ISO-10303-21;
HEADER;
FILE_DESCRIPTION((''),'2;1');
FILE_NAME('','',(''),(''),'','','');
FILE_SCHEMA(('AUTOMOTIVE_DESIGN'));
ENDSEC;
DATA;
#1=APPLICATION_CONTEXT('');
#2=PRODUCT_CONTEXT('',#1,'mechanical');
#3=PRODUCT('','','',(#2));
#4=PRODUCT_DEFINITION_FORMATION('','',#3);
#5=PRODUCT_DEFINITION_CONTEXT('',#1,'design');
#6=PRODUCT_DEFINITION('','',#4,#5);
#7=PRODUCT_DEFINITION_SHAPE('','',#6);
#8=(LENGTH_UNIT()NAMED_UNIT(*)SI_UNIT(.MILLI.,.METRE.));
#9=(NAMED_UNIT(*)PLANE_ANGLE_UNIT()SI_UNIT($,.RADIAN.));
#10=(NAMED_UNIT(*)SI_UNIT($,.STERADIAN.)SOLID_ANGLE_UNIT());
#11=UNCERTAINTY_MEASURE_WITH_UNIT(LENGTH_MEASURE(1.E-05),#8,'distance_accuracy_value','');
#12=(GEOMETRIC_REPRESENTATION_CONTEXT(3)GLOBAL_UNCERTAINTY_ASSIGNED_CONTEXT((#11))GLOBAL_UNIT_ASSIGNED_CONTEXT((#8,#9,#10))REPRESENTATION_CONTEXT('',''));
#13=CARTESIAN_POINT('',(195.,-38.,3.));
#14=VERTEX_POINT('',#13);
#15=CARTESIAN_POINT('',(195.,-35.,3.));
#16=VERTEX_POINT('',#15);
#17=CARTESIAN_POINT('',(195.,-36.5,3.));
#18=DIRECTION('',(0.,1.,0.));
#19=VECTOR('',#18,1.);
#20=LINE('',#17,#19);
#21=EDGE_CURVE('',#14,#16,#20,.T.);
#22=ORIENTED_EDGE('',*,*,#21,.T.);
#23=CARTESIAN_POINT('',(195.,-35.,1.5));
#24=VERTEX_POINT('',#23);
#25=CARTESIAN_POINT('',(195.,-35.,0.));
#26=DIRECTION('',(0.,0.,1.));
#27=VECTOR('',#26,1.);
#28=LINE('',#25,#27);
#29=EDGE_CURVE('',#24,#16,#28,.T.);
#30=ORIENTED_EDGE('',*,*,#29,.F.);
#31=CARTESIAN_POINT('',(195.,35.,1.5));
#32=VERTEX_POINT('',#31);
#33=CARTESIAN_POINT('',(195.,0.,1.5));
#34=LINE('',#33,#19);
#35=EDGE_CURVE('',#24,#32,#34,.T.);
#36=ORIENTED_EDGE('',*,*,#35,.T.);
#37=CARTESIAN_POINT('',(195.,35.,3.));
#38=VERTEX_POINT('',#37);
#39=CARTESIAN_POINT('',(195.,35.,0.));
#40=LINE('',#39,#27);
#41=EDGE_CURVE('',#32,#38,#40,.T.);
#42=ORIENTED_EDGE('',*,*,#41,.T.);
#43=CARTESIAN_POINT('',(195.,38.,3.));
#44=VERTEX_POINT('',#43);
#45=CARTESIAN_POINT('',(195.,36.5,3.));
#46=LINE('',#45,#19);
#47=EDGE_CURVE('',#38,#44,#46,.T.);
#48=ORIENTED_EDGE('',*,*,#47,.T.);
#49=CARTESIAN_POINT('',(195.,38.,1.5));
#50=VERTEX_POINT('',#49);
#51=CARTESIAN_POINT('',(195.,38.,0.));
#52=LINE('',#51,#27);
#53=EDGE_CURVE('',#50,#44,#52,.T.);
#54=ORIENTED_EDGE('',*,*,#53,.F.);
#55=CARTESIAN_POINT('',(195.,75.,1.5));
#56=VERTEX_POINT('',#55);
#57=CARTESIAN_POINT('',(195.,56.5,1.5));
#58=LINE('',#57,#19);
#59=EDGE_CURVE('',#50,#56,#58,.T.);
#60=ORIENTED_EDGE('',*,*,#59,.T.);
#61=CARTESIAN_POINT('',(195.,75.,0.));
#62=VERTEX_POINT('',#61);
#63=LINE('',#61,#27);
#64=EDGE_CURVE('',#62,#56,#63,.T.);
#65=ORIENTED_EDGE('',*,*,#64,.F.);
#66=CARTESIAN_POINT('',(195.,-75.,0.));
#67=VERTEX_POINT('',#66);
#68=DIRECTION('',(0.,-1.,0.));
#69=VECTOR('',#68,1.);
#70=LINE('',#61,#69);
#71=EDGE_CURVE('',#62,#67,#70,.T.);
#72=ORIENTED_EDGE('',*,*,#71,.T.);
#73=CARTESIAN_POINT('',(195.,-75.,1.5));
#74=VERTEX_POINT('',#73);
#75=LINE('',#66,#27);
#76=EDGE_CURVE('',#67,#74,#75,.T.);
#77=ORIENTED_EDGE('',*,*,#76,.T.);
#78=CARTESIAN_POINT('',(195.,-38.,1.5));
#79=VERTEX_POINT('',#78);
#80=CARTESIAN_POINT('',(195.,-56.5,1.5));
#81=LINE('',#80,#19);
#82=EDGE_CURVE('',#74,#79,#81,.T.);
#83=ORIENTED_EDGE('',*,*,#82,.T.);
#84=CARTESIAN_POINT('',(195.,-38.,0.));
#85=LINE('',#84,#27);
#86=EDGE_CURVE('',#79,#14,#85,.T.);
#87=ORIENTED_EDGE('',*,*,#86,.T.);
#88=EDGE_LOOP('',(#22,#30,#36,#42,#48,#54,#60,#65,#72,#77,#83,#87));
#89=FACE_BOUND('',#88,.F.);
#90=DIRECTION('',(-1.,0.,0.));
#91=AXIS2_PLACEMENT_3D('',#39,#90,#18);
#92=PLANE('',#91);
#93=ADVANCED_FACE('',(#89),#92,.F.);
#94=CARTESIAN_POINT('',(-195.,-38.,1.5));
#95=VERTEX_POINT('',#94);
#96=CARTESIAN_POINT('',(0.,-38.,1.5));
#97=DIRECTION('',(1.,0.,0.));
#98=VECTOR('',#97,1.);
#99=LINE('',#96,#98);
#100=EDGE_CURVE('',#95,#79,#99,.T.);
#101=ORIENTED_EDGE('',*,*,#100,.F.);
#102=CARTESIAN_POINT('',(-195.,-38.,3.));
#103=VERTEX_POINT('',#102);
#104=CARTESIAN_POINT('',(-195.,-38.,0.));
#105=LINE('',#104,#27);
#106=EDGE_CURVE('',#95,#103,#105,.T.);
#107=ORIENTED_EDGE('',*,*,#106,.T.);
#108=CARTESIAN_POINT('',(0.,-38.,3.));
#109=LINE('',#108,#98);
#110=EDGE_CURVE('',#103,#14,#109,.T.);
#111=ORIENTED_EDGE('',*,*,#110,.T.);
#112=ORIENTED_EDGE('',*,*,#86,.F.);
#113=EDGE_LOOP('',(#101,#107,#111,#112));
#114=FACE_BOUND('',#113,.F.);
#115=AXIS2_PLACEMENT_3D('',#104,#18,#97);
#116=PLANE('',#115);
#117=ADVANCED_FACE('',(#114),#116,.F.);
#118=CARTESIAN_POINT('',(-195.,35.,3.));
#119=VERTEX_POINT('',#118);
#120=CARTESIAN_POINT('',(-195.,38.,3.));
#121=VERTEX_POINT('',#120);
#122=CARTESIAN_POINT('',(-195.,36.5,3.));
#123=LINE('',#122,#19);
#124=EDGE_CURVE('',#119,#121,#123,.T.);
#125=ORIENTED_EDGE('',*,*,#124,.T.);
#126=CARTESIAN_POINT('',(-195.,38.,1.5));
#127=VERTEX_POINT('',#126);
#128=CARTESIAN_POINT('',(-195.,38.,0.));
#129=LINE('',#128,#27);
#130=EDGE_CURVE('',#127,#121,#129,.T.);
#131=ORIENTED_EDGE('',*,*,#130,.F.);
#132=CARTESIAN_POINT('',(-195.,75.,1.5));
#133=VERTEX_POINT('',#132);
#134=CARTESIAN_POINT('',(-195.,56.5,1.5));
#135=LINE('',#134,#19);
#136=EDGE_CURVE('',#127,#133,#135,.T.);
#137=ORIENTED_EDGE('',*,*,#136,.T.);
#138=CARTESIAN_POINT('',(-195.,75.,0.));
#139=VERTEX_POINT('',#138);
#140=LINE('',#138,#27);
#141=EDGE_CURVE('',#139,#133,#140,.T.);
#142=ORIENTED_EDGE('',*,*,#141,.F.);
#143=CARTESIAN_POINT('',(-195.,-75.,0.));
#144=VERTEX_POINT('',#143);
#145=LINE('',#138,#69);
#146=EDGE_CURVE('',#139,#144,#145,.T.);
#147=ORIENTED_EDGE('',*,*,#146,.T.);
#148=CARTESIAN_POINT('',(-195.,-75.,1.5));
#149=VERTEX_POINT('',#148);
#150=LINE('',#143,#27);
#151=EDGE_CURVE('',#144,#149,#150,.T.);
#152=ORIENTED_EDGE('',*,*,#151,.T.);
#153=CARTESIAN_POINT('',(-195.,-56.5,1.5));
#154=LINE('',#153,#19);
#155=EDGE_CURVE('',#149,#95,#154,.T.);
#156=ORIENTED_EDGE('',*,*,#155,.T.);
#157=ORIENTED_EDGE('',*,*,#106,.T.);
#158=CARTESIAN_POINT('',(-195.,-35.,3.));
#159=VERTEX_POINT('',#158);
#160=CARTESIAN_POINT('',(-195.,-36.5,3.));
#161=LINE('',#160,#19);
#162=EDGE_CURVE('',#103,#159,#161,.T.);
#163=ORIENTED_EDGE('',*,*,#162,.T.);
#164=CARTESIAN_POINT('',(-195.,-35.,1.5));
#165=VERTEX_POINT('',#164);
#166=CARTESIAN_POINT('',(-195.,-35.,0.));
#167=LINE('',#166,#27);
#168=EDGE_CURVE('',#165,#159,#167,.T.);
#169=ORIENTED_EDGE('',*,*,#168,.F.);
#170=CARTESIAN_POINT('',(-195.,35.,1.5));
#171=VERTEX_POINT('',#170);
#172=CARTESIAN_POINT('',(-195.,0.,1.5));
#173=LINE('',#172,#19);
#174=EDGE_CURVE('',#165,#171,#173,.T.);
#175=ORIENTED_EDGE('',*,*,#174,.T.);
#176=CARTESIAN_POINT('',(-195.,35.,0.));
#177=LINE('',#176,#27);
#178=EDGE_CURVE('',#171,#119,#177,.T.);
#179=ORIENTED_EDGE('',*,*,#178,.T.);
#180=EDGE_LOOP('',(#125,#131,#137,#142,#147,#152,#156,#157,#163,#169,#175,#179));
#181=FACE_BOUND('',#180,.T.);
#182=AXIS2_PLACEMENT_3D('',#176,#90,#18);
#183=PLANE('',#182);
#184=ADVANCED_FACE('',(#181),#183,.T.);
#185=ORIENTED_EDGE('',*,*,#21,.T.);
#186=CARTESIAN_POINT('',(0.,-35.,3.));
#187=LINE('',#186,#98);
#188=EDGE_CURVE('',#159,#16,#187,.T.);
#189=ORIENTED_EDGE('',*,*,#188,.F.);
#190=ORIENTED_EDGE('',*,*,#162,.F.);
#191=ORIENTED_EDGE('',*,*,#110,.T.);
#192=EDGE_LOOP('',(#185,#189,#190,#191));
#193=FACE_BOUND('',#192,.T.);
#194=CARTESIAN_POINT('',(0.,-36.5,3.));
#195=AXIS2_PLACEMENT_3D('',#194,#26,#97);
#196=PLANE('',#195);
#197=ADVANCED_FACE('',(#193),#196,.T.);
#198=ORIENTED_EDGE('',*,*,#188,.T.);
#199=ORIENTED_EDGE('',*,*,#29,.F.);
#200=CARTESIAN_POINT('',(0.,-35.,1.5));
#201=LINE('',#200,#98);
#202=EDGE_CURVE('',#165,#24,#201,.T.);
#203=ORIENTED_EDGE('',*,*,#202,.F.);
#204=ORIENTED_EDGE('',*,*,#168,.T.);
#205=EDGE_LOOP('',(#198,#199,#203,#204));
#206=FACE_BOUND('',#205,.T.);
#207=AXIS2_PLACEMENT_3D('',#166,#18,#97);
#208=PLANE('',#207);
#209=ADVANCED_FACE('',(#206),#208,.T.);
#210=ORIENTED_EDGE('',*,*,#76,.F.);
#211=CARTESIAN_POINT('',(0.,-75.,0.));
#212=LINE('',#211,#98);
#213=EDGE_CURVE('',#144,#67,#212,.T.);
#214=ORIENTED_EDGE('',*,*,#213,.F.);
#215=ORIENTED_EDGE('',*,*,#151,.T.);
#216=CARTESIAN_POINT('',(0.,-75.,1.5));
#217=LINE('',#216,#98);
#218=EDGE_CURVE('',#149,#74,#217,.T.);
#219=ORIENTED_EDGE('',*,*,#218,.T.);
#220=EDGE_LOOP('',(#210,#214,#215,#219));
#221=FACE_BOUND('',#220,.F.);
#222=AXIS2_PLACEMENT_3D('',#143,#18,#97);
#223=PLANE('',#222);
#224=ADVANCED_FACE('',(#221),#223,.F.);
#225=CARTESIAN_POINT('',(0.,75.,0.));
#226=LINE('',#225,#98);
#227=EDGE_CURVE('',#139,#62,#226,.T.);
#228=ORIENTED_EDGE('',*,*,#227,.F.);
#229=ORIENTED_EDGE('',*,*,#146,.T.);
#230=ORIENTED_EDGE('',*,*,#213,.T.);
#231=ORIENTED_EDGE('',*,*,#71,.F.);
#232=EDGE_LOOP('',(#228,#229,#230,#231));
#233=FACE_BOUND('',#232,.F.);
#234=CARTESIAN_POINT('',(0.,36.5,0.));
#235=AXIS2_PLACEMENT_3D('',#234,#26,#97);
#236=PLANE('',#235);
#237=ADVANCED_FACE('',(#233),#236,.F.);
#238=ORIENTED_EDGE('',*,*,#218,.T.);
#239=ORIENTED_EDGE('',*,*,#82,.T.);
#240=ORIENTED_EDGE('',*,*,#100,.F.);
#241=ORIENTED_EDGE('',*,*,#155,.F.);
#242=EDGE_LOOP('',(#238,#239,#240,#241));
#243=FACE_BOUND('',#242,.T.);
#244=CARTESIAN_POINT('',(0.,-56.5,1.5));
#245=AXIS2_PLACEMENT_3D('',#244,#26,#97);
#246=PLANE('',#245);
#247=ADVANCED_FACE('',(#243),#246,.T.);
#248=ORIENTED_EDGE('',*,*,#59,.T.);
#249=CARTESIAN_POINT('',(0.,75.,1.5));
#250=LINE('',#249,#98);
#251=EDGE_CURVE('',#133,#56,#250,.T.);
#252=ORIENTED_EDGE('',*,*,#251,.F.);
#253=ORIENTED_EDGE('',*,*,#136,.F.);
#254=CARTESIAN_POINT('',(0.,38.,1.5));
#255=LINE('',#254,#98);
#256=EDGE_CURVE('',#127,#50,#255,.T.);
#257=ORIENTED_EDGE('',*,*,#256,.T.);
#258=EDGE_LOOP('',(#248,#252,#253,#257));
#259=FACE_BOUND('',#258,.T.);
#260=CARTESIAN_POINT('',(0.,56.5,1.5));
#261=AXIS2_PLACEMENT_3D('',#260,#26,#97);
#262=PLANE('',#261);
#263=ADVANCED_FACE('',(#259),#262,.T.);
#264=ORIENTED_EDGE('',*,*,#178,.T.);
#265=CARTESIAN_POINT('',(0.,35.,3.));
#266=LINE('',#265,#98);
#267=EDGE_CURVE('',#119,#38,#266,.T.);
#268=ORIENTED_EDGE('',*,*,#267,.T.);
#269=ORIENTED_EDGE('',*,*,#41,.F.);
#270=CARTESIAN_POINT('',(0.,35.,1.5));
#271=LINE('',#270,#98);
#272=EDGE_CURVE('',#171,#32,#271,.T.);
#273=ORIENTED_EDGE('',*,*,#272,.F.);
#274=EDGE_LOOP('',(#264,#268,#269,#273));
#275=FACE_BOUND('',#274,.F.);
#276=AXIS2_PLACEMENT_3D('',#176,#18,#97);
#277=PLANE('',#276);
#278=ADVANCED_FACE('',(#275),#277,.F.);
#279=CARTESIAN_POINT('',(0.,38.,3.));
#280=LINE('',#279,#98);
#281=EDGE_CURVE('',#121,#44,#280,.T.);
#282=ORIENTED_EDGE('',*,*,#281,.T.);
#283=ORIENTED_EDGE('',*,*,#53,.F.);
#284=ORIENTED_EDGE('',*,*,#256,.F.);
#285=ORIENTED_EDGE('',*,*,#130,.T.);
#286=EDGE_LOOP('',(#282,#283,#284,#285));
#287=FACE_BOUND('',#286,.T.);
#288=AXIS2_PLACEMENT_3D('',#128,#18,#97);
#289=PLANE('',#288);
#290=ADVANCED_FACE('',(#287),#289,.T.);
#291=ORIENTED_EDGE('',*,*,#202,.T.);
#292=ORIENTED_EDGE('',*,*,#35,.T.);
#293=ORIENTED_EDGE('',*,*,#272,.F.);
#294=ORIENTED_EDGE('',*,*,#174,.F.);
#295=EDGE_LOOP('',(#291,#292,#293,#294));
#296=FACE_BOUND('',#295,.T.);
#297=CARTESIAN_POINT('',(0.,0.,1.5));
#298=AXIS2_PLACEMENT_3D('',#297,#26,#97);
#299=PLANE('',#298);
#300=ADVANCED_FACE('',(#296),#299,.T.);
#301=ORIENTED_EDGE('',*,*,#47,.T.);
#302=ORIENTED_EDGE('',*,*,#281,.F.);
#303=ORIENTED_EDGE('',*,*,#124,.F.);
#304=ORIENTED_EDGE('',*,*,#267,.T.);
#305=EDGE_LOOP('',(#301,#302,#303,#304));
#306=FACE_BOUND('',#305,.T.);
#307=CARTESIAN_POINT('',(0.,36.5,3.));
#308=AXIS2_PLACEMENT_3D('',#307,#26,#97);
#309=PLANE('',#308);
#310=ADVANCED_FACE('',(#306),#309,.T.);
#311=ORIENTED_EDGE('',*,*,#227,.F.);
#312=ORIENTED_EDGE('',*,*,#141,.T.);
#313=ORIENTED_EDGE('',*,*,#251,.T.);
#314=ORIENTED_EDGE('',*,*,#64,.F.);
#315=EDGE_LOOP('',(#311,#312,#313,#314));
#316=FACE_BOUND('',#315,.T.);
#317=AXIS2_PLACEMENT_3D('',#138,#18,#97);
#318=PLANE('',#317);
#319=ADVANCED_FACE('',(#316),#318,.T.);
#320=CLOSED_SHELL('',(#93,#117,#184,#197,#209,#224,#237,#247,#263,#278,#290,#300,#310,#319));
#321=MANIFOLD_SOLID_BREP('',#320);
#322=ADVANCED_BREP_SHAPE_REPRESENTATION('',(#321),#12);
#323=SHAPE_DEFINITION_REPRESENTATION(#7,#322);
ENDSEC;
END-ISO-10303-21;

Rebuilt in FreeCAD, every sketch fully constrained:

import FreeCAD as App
import Part
import Sketcher

V = App.Vector

doc = App.newDocument("Part")
body = doc.addObject("PartDesign::Body", "Body")

sketch1 = doc.addObject("Sketcher::SketchObject", "Sketch")
body.addObject(sketch1)
sketch1.AttachmentSupport = (doc.XY_Plane, [""])
sketch1.MapMode = "FlatFace"
sketch1.addGeometry([
    Part.LineSegment(V(-195, 75, 0), V(-195, 38, 0)),
    Part.LineSegment(V(-195, 38, 0), V(195, 38, 0)),
    Part.LineSegment(V(195, 38, 0), V(195, 75, 0)),
    Part.LineSegment(V(195, 75, 0), V(-195, 75, 0)),
], False)
sketch1.addConstraint([
    Sketcher.Constraint("Coincident", 0, 2, 1, 1),
    Sketcher.Constraint("Coincident", 1, 2, 2, 1),
    Sketcher.Constraint("Coincident", 2, 2, 3, 1),
    Sketcher.Constraint("Coincident", 3, 2, 0, 1),
    Sketcher.Constraint("Vertical", 0),
    Sketcher.Constraint("Horizontal", 1),
    Sketcher.Constraint("Vertical", 2),
    Sketcher.Constraint("Horizontal", 3),
    Sketcher.Constraint("DistanceX", 1, 1, 1, 2, 390.0),
    Sketcher.Constraint("DistanceY", 0, 2, 0, 1, 37.0),
    Sketcher.Constraint("DistanceX", 0, 2, -1, 1, 195.0),
    Sketcher.Constraint("DistanceY", -1, 1, 0, 2, 38.0),
])
pad1 = doc.addObject("PartDesign::Pad", "Pad")
body.addObject(pad1)
pad1.Profile = sketch1
pad1.Length = 1.5
body2 = doc.addObject("PartDesign::Body", "Body001")

sketch2 = doc.addObject("Sketcher::SketchObject", "Sketch001")
body2.addObject(sketch2)
sketch2.AttachmentSupport = (doc.getObject("XY_Plane001"), [""])
sketch2.MapMode = "FlatFace"
sketch2.addGeometry([
    Part.LineSegment(V(-195, 35, 0), V(-195, -35, 0)),
    Part.LineSegment(V(-195, -35, 0), V(195, -35, 0)),
    Part.LineSegment(V(195, -35, 0), V(195, 35, 0)),
    Part.LineSegment(V(195, 35, 0), V(-195, 35, 0)),
], False)
sketch2.addConstraint([
    Sketcher.Constraint("Coincident", 0, 2, 1, 1),
    Sketcher.Constraint("Coincident", 1, 2, 2, 1),
    Sketcher.Constraint("Coincident", 2, 2, 3, 1),
    Sketcher.Constraint("Coincident", 3, 2, 0, 1),
    Sketcher.Constraint("Vertical", 0),
    Sketcher.Constraint("Horizontal", 1),
    Sketcher.Constraint("Vertical", 2),
    Sketcher.Constraint("Horizontal", 3),
    Sketcher.Constraint("Symmetric", 0, 2, 2, 2, -1, 1),
    Sketcher.Constraint("DistanceX", 1, 1, 1, 2, 390.0),
    Sketcher.Constraint("DistanceY", 0, 2, 0, 1, 70.0),
])
pad2 = doc.addObject("PartDesign::Pad", "Pad001")
body2.addObject(pad2)
pad2.Profile = sketch2
pad2.Length = 1.5
body3 = doc.addObject("PartDesign::Body", "Body002")

sketch3 = doc.addObject("Sketcher::SketchObject", "Sketch002")
body3.addObject(sketch3)
sketch3.AttachmentSupport = (doc.getObject("XY_Plane002"), [""])
sketch3.MapMode = "FlatFace"
sketch3.addGeometry([
    Part.LineSegment(V(-195, -38, 0), V(-195, -75, 0)),
    Part.LineSegment(V(-195, -75, 0), V(195, -75, 0)),
    Part.LineSegment(V(195, -75, 0), V(195, -38, 0)),
    Part.LineSegment(V(195, -38, 0), V(-195, -38, 0)),
], False)
sketch3.addConstraint([
    Sketcher.Constraint("Coincident", 0, 2, 1, 1),
    Sketcher.Constraint("Coincident", 1, 2, 2, 1),
    Sketcher.Constraint("Coincident", 2, 2, 3, 1),
    Sketcher.Constraint("Coincident", 3, 2, 0, 1),
    Sketcher.Constraint("Vertical", 0),
    Sketcher.Constraint("Horizontal", 1),
    Sketcher.Constraint("Vertical", 2),
    Sketcher.Constraint("Horizontal", 3),
    Sketcher.Constraint("DistanceX", 1, 1, 1, 2, 390.0),
    Sketcher.Constraint("DistanceY", 0, 2, 0, 1, 37.0),
    Sketcher.Constraint("DistanceX", 0, 2, -1, 1, 195.0),
    Sketcher.Constraint("DistanceY", 0, 2, -1, 1, 75.0),
])
pad3 = doc.addObject("PartDesign::Pad", "Pad002")
body3.addObject(pad3)
pad3.Profile = sketch3
pad3.Length = 1.5
body.AllowCompound = True
doc.recompute()

boolean = doc.addObject("PartDesign::Boolean", "Boolean")
body.addObject(boolean)
boolean.Type = "Fuse"
boolean.addObjects([body2])
doc.recompute()

boolean2 = doc.addObject("PartDesign::Boolean", "Boolean001")
body.addObject(boolean2)
boolean2.Type = "Fuse"
boolean2.addObjects([body3])

sketch4 = doc.addObject("Sketcher::SketchObject", "Sketch003")
body.addObject(sketch4)
sketch4.AttachmentSupport = (doc.XY_Plane, [""])
sketch4.MapMode = "FlatFace"
sketch4.addGeometry([
    Part.LineSegment(V(-195, 38, 0), V(-195, 35, 0)),
    Part.LineSegment(V(-195, 35, 0), V(195, 35, 0)),
    Part.LineSegment(V(195, 35, 0), V(195, 38, 0)),
    Part.LineSegment(V(195, 38, 0), V(-195, 38, 0)),
    Part.LineSegment(V(-195, -35, 0), V(-195, -38, 0)),
    Part.LineSegment(V(-195, -38, 0), V(195, -38, 0)),
    Part.LineSegment(V(195, -38, 0), V(195, -35, 0)),
    Part.LineSegment(V(195, -35, 0), V(-195, -35, 0)),
], False)
sketch4.addConstraint([
    Sketcher.Constraint("Coincident", 0, 2, 1, 1),
    Sketcher.Constraint("Coincident", 1, 2, 2, 1),
    Sketcher.Constraint("Coincident", 2, 2, 3, 1),
    Sketcher.Constraint("Coincident", 3, 2, 0, 1),
    Sketcher.Constraint("Coincident", 4, 2, 5, 1),
    Sketcher.Constraint("Coincident", 5, 2, 6, 1),
    Sketcher.Constraint("Coincident", 6, 2, 7, 1),
    Sketcher.Constraint("Coincident", 7, 2, 4, 1),
    Sketcher.Constraint("Vertical", 0),
    Sketcher.Constraint("Horizontal", 1),
    Sketcher.Constraint("Vertical", 2),
    Sketcher.Constraint("Horizontal", 3),
    Sketcher.Constraint("Vertical", 4),
    Sketcher.Constraint("Horizontal", 5),
    Sketcher.Constraint("Vertical", 6),
    Sketcher.Constraint("Horizontal", 7),
    Sketcher.Constraint("Symmetric", 2, 2, 4, 2, -1, 1),
    Sketcher.Constraint("Symmetric", 0, 2, 6, 2, -1, 1),
    Sketcher.Constraint("Vertical", 3, 2, 4, 2),
    Sketcher.Constraint("DistanceX", 1, 1, 1, 2, 390.0),
    Sketcher.Constraint("DistanceY", 0, 2, 0, 1, 3.0),
    Sketcher.Constraint("DistanceY", -1, 1, 0, 2, 35.0),
])
pad4 = doc.addObject("PartDesign::Pad", "Pad003")
body.addObject(pad4)
pad4.Profile = sketch4
pad4.Length = 3

doc.recompute()
